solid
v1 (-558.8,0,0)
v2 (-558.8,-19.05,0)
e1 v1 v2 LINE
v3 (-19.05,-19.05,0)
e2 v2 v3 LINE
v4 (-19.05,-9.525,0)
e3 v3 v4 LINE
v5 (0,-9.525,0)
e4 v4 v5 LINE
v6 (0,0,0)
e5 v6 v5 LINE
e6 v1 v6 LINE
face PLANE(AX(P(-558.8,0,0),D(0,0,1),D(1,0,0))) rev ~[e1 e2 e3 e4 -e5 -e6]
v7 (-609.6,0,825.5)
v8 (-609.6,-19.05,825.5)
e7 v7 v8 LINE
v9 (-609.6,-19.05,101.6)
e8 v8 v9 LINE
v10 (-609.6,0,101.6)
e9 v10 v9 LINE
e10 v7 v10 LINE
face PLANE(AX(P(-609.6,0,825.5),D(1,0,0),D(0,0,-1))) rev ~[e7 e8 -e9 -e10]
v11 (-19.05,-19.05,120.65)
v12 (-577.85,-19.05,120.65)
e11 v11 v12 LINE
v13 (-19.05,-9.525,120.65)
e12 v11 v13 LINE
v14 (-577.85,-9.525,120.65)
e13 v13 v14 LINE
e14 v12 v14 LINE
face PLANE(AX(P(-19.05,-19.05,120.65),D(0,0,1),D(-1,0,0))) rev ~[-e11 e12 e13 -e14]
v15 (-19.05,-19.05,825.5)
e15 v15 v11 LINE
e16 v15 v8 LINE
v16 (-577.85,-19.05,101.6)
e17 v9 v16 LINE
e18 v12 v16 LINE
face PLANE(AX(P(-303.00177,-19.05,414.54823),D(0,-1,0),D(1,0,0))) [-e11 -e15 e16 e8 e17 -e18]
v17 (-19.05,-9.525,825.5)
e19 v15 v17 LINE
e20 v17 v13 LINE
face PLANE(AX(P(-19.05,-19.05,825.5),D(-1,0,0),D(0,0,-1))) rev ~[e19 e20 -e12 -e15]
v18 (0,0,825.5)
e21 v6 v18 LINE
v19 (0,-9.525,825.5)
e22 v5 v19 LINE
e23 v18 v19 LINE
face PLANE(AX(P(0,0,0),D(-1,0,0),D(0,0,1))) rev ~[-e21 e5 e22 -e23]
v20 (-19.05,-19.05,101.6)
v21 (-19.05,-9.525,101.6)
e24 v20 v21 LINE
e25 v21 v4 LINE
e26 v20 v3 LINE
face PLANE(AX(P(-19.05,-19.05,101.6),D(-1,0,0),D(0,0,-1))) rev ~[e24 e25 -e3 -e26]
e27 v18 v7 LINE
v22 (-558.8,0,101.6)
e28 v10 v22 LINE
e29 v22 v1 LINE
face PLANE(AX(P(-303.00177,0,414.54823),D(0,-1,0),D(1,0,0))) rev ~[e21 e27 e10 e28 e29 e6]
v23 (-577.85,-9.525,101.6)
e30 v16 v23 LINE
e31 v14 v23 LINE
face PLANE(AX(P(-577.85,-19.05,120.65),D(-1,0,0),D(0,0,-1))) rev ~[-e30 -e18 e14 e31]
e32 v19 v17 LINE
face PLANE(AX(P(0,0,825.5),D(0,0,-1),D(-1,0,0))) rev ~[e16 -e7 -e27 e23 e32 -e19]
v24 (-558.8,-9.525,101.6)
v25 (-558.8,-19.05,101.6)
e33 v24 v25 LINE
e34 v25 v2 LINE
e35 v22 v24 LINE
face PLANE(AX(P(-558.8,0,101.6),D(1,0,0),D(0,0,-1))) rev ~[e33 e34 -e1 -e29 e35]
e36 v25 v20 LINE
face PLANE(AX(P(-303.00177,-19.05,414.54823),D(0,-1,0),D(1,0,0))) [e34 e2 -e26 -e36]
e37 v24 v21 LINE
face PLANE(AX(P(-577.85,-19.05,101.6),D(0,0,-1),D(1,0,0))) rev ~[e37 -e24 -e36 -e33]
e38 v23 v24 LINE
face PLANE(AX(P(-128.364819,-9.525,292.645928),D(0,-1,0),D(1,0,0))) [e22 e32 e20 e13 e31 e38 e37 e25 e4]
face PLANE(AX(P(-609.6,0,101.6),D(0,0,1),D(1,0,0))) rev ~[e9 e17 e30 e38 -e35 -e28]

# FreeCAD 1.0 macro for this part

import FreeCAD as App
import Part
import Sketcher
from FreeCAD import Vector
Q = App.Units.Quantity

doc = App.newDocument("Part")
body = doc.addObject("PartDesign::Body", "Body")

sketch1 = doc.addObject("Sketcher::SketchObject", "Sketch")
body.addObject(sketch1)
sketch1.AttachmentSupport = (doc.XZ_Plane, [""])
sketch1.MapMode = "FlatFace"
sketch1.addGeometry([
    Part.LineSegment(Vector(-559, 0, 0), Vector(0, 0, 0)),
    Part.LineSegment(Vector(0, 0, 0), Vector(0, 826, 0)),
    Part.LineSegment(Vector(0, 826, 0), Vector(-610, 826, 0)),
    Part.LineSegment(Vector(-610, 826, 0), Vector(-610, 102, 0)),
    Part.LineSegment(Vector(-610, 102, 0), Vector(-559, 102, 0)),
    Part.LineSegment(Vector(-559, 102, 0), Vector(-559, 0, 0)),
], False)
sketch1.addConstraint([
    Sketcher.Constraint("Coincident", 0, 2, 1, 1),
    Sketcher.Constraint("Coincident", 1, 2, 2, 1),
    Sketcher.Constraint("Coincident", 2, 2, 3, 1),
    Sketcher.Constraint("Coincident", 3, 2, 4, 1),
    Sketcher.Constraint("Coincident", 4, 2, 5, 1),
    Sketcher.Constraint("Coincident", 5, 2, 0, 1),
    Sketcher.Constraint("Horizontal", 0),
    Sketcher.Constraint("Vertical", 1),
    Sketcher.Constraint("Horizontal", 2),
    Sketcher.Constraint("Vertical", 3),
    Sketcher.Constraint("Horizontal", 4),
    Sketcher.Constraint("Vertical", 5),
    Sketcher.Constraint("Coincident", 0, 2, -1, 1),
    Sketcher.Constraint("DistanceX", 0, 1, 0, 2, Q("22 in")),
    Sketcher.Constraint("DistanceX", 2, 2, 2, 1, Q("24 in")),
    Sketcher.Constraint("DistanceY", 5, 2, 5, 1, Q("4 in")),
    Sketcher.Constraint("DistanceY", 1, 1, 1, 2, Q("32.5 in")),
])
pad1 = doc.addObject("PartDesign::Pad", "Pad")
body.addObject(pad1)
pad1.Profile = sketch1
pad1.Length = Q("0.75 in")

sketch2 = doc.addObject("Sketcher::SketchObject", "Sketch001")
body.addObject(sketch2)
sketch2.AttachmentSupport = (doc.XZ_Plane, [""])
sketch2.MapMode = "FlatFace"
sketch2.AttachmentOffset = App.Placement(Vector(0, 0, 0.75 * 25.4), App.Rotation())
sketch2.addGeometry([
    Part.LineSegment(Vector(0, 826, 0), Vector(-19, 826, 0)),
    Part.LineSegment(Vector(-19, 826, 0), Vector(-19, 121, 0)),
    Part.LineSegment(Vector(-19, 121, 0), Vector(-578, 121, 0)),
    Part.LineSegment(Vector(-578, 121, 0), Vector(-578, 102, 0)),
    Part.LineSegment(Vector(-578, 102, 0), Vector(-19, 102, 0)),
    Part.LineSegment(Vector(-19, 102, 0), Vector(-19, 0, 0)),
    Part.LineSegment(Vector(-19, 0, 0), Vector(0, 0, 0)),
    Part.LineSegment(Vector(0, 0, 0), Vector(0, 826, 0)),
], False)
sketch2.addConstraint([
    Sketcher.Constraint("Coincident", 0, 2, 1, 1),
    Sketcher.Constraint("Coincident", 1, 2, 2, 1),
    Sketcher.Constraint("Coincident", 2, 2, 3, 1),
    Sketcher.Constraint("Coincident", 3, 2, 4, 1),
    Sketcher.Constraint("Coincident", 4, 2, 5, 1),
    Sketcher.Constraint("Coincident", 5, 2, 6, 1),
    Sketcher.Constraint("Coincident", 6, 2, 7, 1),
    Sketcher.Constraint("Coincident", 7, 2, 0, 1),
    Sketcher.Constraint("Horizontal", 0),
    Sketcher.Constraint("Vertical", 1),
    Sketcher.Constraint("Horizontal", 2),
    Sketcher.Constraint("Vertical", 3),
    Sketcher.Constraint("Horizontal", 4),
    Sketcher.Constraint("Vertical", 5),
    Sketcher.Constraint("Horizontal", 6),
    Sketcher.Constraint("Vertical", 7),
    Sketcher.Constraint("Coincident", 6, 2, -1, 1),
    Sketcher.Constraint("Vertical", 1, 2, 4, 2),
    Sketcher.Constraint("Equal", 6, 3),
    Sketcher.Constraint("DistanceX", 2, 2, 2, 1, Q("22 in")),
    Sketcher.Constraint("DistanceY", 5, 2, 5, 1, Q("4 in")),
    Sketcher.Constraint("DistanceY", 7, 1, 7, 2, Q("32.5 in")),
    Sketcher.Constraint("DistanceX", 0, 2, 0, 1, Q("0.75 in")),
])
pocket1 = doc.addObject("PartDesign::Pocket", "Pocket")
body.addObject(pocket1)
pocket1.Profile = sketch2
pocket1.Length = Q("0.375 in")

doc.recompute()
